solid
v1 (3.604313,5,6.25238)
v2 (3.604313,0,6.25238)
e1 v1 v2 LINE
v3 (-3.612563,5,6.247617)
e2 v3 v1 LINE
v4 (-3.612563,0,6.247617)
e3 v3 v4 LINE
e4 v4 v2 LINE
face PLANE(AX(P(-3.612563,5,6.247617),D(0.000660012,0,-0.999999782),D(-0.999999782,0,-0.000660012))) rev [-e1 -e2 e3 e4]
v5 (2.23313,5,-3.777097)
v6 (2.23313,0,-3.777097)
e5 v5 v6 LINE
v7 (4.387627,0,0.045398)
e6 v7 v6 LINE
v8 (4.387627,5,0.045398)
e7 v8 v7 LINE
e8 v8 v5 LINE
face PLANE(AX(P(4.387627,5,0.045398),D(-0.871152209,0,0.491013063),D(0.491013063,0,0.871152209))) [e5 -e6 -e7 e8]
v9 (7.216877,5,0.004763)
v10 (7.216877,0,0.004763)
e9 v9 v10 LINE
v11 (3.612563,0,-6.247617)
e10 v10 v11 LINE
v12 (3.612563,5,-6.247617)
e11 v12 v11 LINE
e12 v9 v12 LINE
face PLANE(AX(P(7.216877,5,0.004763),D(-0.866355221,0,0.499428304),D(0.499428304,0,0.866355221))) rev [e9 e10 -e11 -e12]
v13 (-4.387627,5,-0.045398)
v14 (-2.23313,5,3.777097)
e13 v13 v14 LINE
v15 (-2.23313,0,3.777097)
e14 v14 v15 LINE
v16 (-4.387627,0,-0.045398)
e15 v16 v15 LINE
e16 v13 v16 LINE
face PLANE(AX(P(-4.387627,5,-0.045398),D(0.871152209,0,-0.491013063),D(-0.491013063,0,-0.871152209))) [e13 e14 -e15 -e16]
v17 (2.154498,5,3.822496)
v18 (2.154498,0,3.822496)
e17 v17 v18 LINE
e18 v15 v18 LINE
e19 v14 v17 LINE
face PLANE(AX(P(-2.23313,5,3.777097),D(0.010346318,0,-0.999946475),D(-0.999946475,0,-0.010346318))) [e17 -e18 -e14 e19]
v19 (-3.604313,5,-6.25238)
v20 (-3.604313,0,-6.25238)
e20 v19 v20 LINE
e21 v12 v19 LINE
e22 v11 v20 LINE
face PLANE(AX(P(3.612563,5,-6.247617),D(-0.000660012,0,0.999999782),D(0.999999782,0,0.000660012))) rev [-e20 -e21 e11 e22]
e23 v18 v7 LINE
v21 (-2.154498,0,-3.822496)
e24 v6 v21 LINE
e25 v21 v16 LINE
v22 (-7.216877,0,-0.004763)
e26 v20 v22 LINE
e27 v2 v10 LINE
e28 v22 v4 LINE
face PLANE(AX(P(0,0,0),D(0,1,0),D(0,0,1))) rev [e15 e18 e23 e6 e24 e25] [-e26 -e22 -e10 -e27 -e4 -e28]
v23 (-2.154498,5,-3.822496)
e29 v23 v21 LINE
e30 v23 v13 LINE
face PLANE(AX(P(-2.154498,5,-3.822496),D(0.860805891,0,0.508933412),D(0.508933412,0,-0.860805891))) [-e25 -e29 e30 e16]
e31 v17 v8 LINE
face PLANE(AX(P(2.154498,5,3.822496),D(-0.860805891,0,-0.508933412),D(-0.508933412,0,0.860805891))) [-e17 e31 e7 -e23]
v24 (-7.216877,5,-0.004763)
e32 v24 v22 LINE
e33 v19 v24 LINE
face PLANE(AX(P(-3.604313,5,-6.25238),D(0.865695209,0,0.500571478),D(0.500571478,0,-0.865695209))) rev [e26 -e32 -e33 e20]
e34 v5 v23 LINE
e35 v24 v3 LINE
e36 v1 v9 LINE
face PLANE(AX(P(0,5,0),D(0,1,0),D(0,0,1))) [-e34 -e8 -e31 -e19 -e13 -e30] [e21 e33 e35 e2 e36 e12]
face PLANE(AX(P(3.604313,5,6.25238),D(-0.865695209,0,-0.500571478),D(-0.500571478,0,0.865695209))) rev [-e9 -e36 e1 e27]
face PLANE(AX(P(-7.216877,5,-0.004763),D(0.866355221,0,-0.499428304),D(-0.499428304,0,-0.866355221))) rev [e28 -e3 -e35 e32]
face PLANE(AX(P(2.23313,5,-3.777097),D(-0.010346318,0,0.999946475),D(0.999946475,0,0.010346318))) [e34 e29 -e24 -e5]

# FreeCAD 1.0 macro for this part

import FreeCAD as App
import Part
import Sketcher
from FreeCAD import Vector

doc = App.newDocument("Part")
params = doc.addObject("Spreadsheet::Sheet", "Params")
for row, (alias, value) in enumerate([
    ("pad1_length", "5 mm"),
], start=1):
    params.set(f"A{row}", alias)
    params.set(f"B{row}", "=" + value)
    params.setAlias(f"B{row}", alias)

body = doc.addObject("PartDesign::Body", "Body")

sketch1 = doc.addObject("Sketcher::SketchObject", "Sketch")
body.addObject(sketch1)
sketch1.AttachmentSupport = (doc.XZ_Plane, [""])
sketch1.MapMode = "FlatFace"
sketch1.addGeometry([
    Part.LineSegment(Vector(3.6, 6.3, 0), Vector(7.2, 0, 0)),
    Part.LineSegment(Vector(7.2, 0, 0), Vector(3.6, -6.2, 0)),
    Part.LineSegment(Vector(3.6, -6.2, 0), Vector(-3.6, -6.3, 0)),
    Part.LineSegment(Vector(-3.6, -6.3, 0), Vector(-7.2, 0, 0)),
    Part.LineSegment(Vector(-7.2, 0, 0), Vector(-3.6, 6.2, 0)),
    Part.LineSegment(Vector(-3.6, 6.2, 0), Vector(3.6, 6.3, 0)),
    Part.LineSegment(Vector(4.4, 0, 0), Vector(2.2, 3.8, 0)),
    Part.LineSegment(Vector(2.2, 3.8, 0), Vector(-2.2, 3.8, 0)),
    Part.LineSegment(Vector(-2.2, 3.8, 0), Vector(-4.4, 0, 0)),
    Part.LineSegment(Vector(-4.4, 0, 0), Vector(-2.2, -3.8, 0)),
    Part.LineSegment(Vector(-2.2, -3.8, 0), Vector(2.2, -3.8, 0)),
    Part.LineSegment(Vector(2.2, -3.8, 0), Vector(4.4, 0, 0)),
], False)
sketch1.addConstraint([
    Sketcher.Constraint("Coincident", 0, 2, 1, 1),
    Sketcher.Constraint("Coincident", 1, 2, 2, 1),
    Sketcher.Constraint("Coincident", 2, 2, 3, 1),
    Sketcher.Constraint("Coincident", 3, 2, 4, 1),
    Sketcher.Constraint("Coincident", 4, 2, 5, 1),
    Sketcher.Constraint("Coincident", 5, 2, 0, 1),
    Sketcher.Constraint("Coincident", 6, 2, 7, 1),
    Sketcher.Constraint("Coincident", 7, 2, 8, 1),
    Sketcher.Constraint("Coincident", 8, 2, 9, 1),
    Sketcher.Constraint("Coincident", 9, 2, 10, 1),
    Sketcher.Constraint("Coincident", 10, 2, 11, 1),
    Sketcher.Constraint("Coincident", 11, 2, 6, 1),
    Sketcher.Constraint("Symmetric", 0, 2, 3, 2, -1, 1),
    Sketcher.Constraint("Symmetric", 1, 2, 4, 2, -1, 1),
    Sketcher.Constraint("Symmetric", 2, 2, 5, 2, -1, 1),
    Sketcher.Constraint("Symmetric", 6, 2, 9, 2, -1, 1),
    Sketcher.Constraint("Symmetric", 7, 2, 10, 2, -1, 1),
    Sketcher.Constraint("Symmetric", 8, 2, 11, 2, -1, 1),
    Sketcher.Constraint("Equal", 0, 1),
    Sketcher.Constraint("Equal", 1, 2),
    Sketcher.Constraint("Equal", 6, 7),
    Sketcher.Constraint("Equal", 7, 8),
    Sketcher.Constraint("DistanceY", 8, 2, -1, 1, 0.045398),
    Sketcher.Constraint("DistanceY", 7, 2, 6, 2, 0.045398),
    Sketcher.Constraint("DistanceY", 10, 2, 8, 2, 3.731699),
    Sketcher.Constraint("Distance", 0, 7.216878),
    Sketcher.Constraint("DistanceY", 2, 2, -1, 1, 6.25238),
    Sketcher.Constraint("DistanceX", 7, 2, -1, 1, 2.23313),
    Sketcher.Constraint("DistanceY", 1, 2, 0, 2, 6.25238),
    Sketcher.Constraint("DistanceX", 3, 2, 1, 2, 10.82944),
])
pad1 = doc.addObject("PartDesign::Pad", "Pad")
body.addObject(pad1)
pad1.Profile = sketch1
pad1.setExpression("Length", "Params.pad1_length")
pad1.Reversed = True

doc.recompute()
